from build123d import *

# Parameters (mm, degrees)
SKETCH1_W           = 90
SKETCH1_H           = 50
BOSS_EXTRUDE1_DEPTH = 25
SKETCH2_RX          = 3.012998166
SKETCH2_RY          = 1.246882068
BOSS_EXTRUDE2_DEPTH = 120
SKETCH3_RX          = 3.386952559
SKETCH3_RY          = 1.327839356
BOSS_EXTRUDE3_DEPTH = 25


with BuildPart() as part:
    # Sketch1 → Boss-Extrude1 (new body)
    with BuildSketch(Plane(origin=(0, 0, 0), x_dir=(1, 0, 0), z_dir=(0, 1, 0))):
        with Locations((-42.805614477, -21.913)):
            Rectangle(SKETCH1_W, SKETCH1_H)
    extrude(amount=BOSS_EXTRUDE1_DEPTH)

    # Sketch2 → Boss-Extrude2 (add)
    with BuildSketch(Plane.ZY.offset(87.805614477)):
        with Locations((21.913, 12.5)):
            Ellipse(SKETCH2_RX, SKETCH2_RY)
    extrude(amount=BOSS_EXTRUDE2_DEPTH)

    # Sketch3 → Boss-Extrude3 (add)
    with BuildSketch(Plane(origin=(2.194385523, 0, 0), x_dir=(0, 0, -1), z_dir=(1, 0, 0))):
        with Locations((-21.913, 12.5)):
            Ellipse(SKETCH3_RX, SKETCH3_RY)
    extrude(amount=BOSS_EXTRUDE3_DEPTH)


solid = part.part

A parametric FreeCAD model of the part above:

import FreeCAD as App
import Part
import Sketcher

doc = App.newDocument("Part")
body = doc.addObject("PartDesign::Body", "Body")

# Sketch on XZ plane
sketch1 = body.newObject("Sketcher::SketchObject", "Sketch")
sketch1.AttachmentSupport = (doc.getObject("XZ_Plane"), [""])
sketch1.MapMode = "FlatFace"
sketch1.addGeometry(Part.LineSegment(App.Vector(-87.805614, -3.087, 0), App.Vector(-87.805614, 46.913, 0)), False)
sketch1.addGeometry(Part.LineSegment(App.Vector(-87.805614, 46.913, 0), App.Vector(2.194386, 46.913, 0)), False)
sketch1.addGeometry(Part.LineSegment(App.Vector(2.194386, 46.913, 0), App.Vector(2.194386, -3.087, 0)), False)
sketch1.addGeometry(Part.LineSegment(App.Vector(2.194386, -3.087, 0), App.Vector(-87.805614, -3.087, 0)), False)
sketch1.addConstraint(Sketcher.Constraint("Coincident", 0, 2, 1, 1))
sketch1.addConstraint(Sketcher.Constraint("Coincident", 1, 2, 2, 1))
sketch1.addConstraint(Sketcher.Constraint("Coincident", 2, 2, 3, 1))
sketch1.addConstraint(Sketcher.Constraint("Coincident", 3, 2, 0, 1))
sketch1.addConstraint(Sketcher.Constraint("Vertical", 0))
sketch1.addConstraint(Sketcher.Constraint("Horizontal", 1))
sketch1.addConstraint(Sketcher.Constraint("Vertical", 2))
sketch1.addConstraint(Sketcher.Constraint("Horizontal", 3))
sketch1.addConstraint(Sketcher.Constraint("DistanceX", 1, 1, 1, 2, 90.0))
sketch1.addConstraint(Sketcher.Constraint("DistanceY", 0, 1, 0, 2, 50.0))
sketch1.addConstraint(Sketcher.Constraint("DistanceY", -1, 1, 0, 2, 46.913))
sketch1.addConstraint(Sketcher.Constraint("DistanceX", 0, 2, -1, 1, 87.805614))
pad1 = body.newObject("PartDesign::Pad", "Pad")
pad1.Profile = sketch1
pad1.Length = 25
pad1.Reversed = True

# Sketch on YZ plane
sketch2 = body.newObject("Sketcher::SketchObject", "Sketch001")
sketch2.AttachmentSupport = (doc.getObject("YZ_Plane"), [""])
sketch2.MapMode = "FlatFace"
sketch2.AttachmentOffset = App.Placement(App.Vector(0, 0, -87.805614), App.Rotation())
sketch2.addGeometry(Part.Ellipse(App.Vector(12.5, 24.925998, 0), App.Vector(11.253118, 21.913, 0), App.Vector(12.5, 21.913, 0)), False)
sketch2.addConstraint(Sketcher.Constraint("Block", 0))
pad2 = body.newObject("PartDesign::Pad", "Pad001")
pad2.Profile = sketch2
pad2.Length = 120
pad2.Reversed = True

# Sketch on YZ plane
sketch3 = body.newObject("Sketcher::SketchObject", "Sketch002")
sketch3.AttachmentSupport = (doc.getObject("YZ_Plane"), [""])
sketch3.MapMode = "FlatFace"
sketch3.AttachmentOffset = App.Placement(App.Vector(0, 0, 2.194386), App.Rotation())
sketch3.addGeometry(Part.Ellipse(App.Vector(12.5, 18.526047, 0), App.Vector(13.827839, 21.913, 0), App.Vector(12.5, 21.913, 0)), False)
sketch3.addConstraint(Sketcher.Constraint("Block", 0))
pad3 = body.newObject("PartDesign::Pad", "Pad002")
pad3.Profile = sketch3
pad3.Length = 25

doc.recompute()
